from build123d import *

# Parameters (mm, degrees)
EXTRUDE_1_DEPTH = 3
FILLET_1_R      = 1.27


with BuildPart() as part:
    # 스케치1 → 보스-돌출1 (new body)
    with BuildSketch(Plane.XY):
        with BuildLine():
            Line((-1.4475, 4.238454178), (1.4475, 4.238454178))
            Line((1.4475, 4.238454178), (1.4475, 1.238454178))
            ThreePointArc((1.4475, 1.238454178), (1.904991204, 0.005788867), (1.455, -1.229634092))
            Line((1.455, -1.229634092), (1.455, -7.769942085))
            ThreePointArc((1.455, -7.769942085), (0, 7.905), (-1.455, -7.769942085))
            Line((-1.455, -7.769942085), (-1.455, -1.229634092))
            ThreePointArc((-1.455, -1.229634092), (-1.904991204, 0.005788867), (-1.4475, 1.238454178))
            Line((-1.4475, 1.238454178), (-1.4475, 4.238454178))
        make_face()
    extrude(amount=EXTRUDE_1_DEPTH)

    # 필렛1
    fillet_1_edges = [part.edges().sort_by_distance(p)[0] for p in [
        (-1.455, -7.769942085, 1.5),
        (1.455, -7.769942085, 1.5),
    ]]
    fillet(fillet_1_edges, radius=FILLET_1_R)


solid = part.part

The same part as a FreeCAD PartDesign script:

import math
import FreeCAD as App
import Part
import Sketcher
Q = App.Units.Quantity


def edges_at(feature, points):
    """Names of the edges that pass closest to the given points."""
    edges = feature.Shape.Edges
    near = lambda p: min(range(len(edges)), key=lambda i: edges[i].distToShape(Part.Vertex(*p))[0])
    return sorted({f"Edge{near(p) + 1}" for p in points})

doc = App.newDocument("Part")
body = doc.addObject("PartDesign::Body", "Body")

sketch1 = body.newObject("Sketcher::SketchObject", "Sketch")
sketch1.AttachmentSupport = (doc.getObject("XY_Plane"), [""])
sketch1.MapMode = "FlatFace"
sketch1.addGeometry([
    Part.LineSegment(App.Vector(-1.4, 4.2, 0), App.Vector(1.4, 4.2, 0)),
    Part.LineSegment(App.Vector(1.4, 4.2, 0), App.Vector(1.4, 1.2, 0)),
    Part.ArcOfCircle(Part.Circle(App.Vector(0, 0, 0), App.Vector(0, 0, 1), 1.9), math.radians(-40), math.radians(41)),
    Part.LineSegment(App.Vector(1.5, -1.2, 0), App.Vector(1.5, -7.8, 0)),
    Part.ArcOfCircle(Part.Circle(App.Vector(0, 0, 0), App.Vector(0, 0, 1), 7.9), math.radians(-79), math.radians(259)),
    Part.LineSegment(App.Vector(-1.5, -7.8, 0), App.Vector(-1.5, -1.2, 0)),
    Part.ArcOfCircle(Part.Circle(App.Vector(0, 0, 0), App.Vector(0, 0, 1), 1.9), math.radians(139), math.radians(220)),
    Part.LineSegment(App.Vector(-1.4, 1.2, 0), App.Vector(-1.4, 4.2, 0)),
], False)
sketch1.addConstraint([
    Sketcher.Constraint("Coincident", 0, 2, 1, 1),
    Sketcher.Constraint("Coincident", 1, 2, 2, 2),
    Sketcher.Constraint("Coincident", 2, 1, 3, 1),
    Sketcher.Constraint("Coincident", 3, 2, 4, 1),
    Sketcher.Constraint("Coincident", 4, 2, 5, 1),
    Sketcher.Constraint("Coincident", 5, 2, 6, 2),
    Sketcher.Constraint("Coincident", 6, 1, 7, 1),
    Sketcher.Constraint("Coincident", 7, 2, 0, 1),
    Sketcher.Constraint("Horizontal", 0),
    Sketcher.Constraint("Vertical", 1),
    Sketcher.Constraint("Vertical", 3),
    Sketcher.Constraint("Vertical", 5),
    Sketcher.Constraint("Vertical", 7),
    Sketcher.Constraint("Coincident", 2, 3, -1, 1),
    Sketcher.Constraint("Coincident", 4, 3, -1, 1),
    Sketcher.Constraint("Coincident", 6, 3, -1, 1),
    Sketcher.Constraint("Equal", 2, 6),
    Sketcher.Constraint("Horizontal", 3, 2, 4, 2),
    Sketcher.Constraint("Horizontal", 1, 2, 6, 1),
    Sketcher.Constraint("Radius", 2, Q("0.075 in")),
    Sketcher.Constraint("Radius", 4, Q("7.905 mm")),
    Sketcher.Constraint("DistanceX", 0, 1, 0, 2, Q("2.895 mm")),
    Sketcher.Constraint("DistanceY", 1, 2, 1, 1, Q("3 mm")),
    Sketcher.Constraint("DistanceX", -1, 1, 2, 1, Q("1.455 mm")),
])
pad1 = body.newObject("PartDesign::Pad", "Pad")
pad1.Profile = sketch1
pad1.Length = 3
doc.recompute()

fillet = body.newObject("PartDesign::Fillet", "Fillet")
fillet.Base = (pad1, edges_at(pad1, [(-1.455, -7.77, 1.5), (1.455, -7.77, 1.5)]))
fillet.Radius = Q("0.05 in")

doc.recompute()
